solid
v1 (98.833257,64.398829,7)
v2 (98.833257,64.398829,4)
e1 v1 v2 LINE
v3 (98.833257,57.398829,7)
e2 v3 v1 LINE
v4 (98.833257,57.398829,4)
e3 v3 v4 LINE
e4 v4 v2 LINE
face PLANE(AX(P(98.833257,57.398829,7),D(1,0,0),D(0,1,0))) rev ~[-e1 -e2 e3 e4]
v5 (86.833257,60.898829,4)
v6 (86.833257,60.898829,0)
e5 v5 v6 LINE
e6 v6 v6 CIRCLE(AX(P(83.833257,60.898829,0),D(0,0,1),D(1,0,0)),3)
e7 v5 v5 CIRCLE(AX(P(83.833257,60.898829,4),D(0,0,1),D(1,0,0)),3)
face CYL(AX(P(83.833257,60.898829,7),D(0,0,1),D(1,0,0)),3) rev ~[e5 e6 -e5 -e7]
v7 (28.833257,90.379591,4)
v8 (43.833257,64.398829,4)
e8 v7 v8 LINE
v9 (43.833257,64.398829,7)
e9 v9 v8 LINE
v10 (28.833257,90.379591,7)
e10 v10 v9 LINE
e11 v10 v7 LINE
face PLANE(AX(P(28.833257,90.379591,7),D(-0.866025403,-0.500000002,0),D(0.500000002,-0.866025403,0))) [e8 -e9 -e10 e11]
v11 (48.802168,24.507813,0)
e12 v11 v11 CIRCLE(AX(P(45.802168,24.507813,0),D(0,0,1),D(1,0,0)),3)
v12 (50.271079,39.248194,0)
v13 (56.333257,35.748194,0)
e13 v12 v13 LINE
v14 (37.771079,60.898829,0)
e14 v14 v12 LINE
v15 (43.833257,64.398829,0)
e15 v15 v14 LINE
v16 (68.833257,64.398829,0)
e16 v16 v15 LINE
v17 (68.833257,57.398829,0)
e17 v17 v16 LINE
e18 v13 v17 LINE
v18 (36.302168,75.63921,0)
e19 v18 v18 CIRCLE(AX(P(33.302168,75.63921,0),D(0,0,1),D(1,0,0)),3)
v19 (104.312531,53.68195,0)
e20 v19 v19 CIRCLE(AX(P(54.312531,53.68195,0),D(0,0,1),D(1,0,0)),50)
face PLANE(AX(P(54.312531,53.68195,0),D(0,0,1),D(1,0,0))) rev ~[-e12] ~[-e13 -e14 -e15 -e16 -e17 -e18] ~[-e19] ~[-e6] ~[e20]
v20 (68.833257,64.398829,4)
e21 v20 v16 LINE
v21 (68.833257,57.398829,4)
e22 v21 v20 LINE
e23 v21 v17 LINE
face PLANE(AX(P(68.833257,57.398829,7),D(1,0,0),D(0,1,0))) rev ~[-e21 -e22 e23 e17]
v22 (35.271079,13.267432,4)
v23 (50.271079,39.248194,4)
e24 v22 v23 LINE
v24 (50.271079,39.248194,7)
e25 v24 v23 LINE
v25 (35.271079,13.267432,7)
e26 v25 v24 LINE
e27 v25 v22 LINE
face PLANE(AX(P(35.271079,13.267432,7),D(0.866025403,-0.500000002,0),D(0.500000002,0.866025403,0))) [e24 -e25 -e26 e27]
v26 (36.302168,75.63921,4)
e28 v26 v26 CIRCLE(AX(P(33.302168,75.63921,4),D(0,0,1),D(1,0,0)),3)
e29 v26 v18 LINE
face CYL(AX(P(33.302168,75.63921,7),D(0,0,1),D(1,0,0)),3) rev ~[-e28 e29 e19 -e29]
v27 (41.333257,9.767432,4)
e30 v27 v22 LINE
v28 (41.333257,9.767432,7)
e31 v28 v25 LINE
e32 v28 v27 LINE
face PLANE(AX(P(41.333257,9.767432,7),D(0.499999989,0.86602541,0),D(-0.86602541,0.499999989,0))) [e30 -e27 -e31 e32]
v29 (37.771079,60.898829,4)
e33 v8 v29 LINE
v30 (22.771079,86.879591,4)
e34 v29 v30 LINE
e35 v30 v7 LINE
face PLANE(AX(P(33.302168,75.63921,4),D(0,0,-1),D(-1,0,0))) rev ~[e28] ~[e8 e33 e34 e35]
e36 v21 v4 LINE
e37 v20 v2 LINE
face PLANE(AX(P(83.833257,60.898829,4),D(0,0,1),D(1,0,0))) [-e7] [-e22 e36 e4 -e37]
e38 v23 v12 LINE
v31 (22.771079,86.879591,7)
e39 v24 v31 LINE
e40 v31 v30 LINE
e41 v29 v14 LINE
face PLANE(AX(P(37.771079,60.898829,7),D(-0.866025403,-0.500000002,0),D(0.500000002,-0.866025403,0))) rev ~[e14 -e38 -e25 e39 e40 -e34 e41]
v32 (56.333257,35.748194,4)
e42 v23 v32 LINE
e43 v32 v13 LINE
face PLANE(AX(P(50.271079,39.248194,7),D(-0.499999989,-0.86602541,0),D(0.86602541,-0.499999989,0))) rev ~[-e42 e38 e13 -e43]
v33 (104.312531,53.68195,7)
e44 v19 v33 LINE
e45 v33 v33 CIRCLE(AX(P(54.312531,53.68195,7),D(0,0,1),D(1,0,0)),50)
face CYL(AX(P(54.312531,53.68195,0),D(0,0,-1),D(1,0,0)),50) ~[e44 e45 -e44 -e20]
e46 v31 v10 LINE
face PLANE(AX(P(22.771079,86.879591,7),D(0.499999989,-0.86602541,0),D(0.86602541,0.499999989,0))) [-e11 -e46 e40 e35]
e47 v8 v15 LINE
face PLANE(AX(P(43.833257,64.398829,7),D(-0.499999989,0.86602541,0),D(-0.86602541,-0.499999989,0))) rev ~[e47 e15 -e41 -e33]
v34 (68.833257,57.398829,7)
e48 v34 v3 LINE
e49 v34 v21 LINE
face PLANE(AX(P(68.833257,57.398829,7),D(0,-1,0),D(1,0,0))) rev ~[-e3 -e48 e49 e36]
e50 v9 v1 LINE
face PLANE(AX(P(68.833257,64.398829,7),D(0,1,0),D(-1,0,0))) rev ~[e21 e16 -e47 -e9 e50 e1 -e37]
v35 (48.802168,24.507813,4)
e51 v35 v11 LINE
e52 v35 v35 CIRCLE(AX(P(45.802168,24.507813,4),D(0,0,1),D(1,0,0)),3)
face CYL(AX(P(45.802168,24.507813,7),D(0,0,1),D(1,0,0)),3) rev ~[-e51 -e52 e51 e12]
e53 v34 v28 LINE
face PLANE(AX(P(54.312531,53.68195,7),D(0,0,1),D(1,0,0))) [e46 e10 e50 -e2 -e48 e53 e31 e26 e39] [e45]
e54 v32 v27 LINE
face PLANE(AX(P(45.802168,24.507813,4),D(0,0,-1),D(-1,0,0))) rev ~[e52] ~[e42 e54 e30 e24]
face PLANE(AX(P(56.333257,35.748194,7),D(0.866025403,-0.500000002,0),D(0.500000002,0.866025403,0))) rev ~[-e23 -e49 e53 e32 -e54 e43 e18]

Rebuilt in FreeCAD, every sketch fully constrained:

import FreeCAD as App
import Part
import Sketcher

V = App.Vector
Q = App.Units.Quantity


def add_polygon(sketch, points):
    """Adds a closed chain of lines whose ends are joined by coincident constraints."""
    first, n = sketch.GeometryCount, len(points)
    for a, b in zip(points, points[1:] + points[:1]):
        sketch.addGeometry(Part.LineSegment(App.Vector(*a, 0), App.Vector(*b, 0)), False)
    for i in range(n):
        sketch.addConstraint(Sketcher.Constraint("Coincident", first + i, 2, first + (i + 1) % n, 1))

doc = App.newDocument("Part")
body = doc.addObject("PartDesign::Body", "Body")

# Sketch on XY plane
sketch1 = body.newObject("Sketcher::SketchObject", "Sketch")
sketch1.AttachmentSupport = (doc.getObject("XY_Plane"), [""])
sketch1.MapMode = "FlatFace"
sketch1.addGeometry(Part.Circle(V(54.312531, 53.68195, 0), V(0, 0, 1), 50), False)
sketch1.addConstraint([
    Sketcher.Constraint("Diameter", 0, 100.0),
    Sketcher.Constraint("DistanceX", -1, 1, 0, 3, 54.312531),
    Sketcher.Constraint("DistanceY", -1, 1, 0, 3, 53.68195),
])
pad1 = body.newObject("PartDesign::Pad", "Pad")
pad1.Profile = sketch1
pad1.Length = 7

# Sketch on XY plane
sketch2 = body.newObject("Sketcher::SketchObject", "Sketch001")
sketch2.AttachmentSupport = (doc.getObject("XY_Plane"), [""])
sketch2.MapMode = "FlatFace"
sketch2.AttachmentOffset = App.Placement(V(0, 0, 7), App.Rotation())
add_polygon(sketch2, [(56.333257, 35.748194), (68.833257, 57.398829), (68.833257, 64.398829), (43.833257, 64.398829), (37.771079, 60.898829), (50.271079, 39.248194)])  # lines 0-5
sketch2.addConstraint([
    Sketcher.Constraint("Vertical", 1),
    Sketcher.Constraint("Horizontal", 2),
    Sketcher.Constraint("Perpendicular", 3, 4),
    Sketcher.Constraint("Perpendicular", 0, 5),
    Sketcher.Constraint("Equal", 0, 4),
    Sketcher.Constraint("Equal", 3, 5),
    Sketcher.Constraint("DistanceX", 2, 2, 2, 1, 25.0),
    Sketcher.Constraint("DistanceY", 1, 1, 1, 2, 7.0),
    Sketcher.Constraint("Angle", 0, Q("60 deg")),
    Sketcher.Constraint("Angle", 3, Q("-150.000001 deg")),
    Sketcher.Constraint("DistanceY", -1, 1, 0, 2, 57.398829),
    Sketcher.Constraint("DistanceX", -1, 1, 3, 2, 37.771079),
])
pocket1 = body.newObject("PartDesign::Pocket", "Pocket")
pocket1.Profile = sketch2
pocket1.Type = "ThroughAll"

# Sketch on XY plane
sketch3 = body.newObject("Sketcher::SketchObject", "Sketch002")
sketch3.AttachmentSupport = (doc.getObject("XY_Plane"), [""])
sketch3.MapMode = "FlatFace"
sketch3.AttachmentOffset = App.Placement(V(0, 0, 7), App.Rotation())
add_polygon(sketch3, [(68.833257, 64.398829), (68.833257, 57.398829), (98.833257, 57.398829), (98.833257, 64.398829)])  # lines 0-3
add_polygon(sketch3, [(41.333257, 9.767432), (56.333257, 35.748194), (50.271079, 39.248194), (35.271079, 13.267432)])  # lines 4-7
add_polygon(sketch3, [(22.771079, 86.879591), (37.771079, 60.898829), (43.833257, 64.398829), (28.833257, 90.379591)])  # lines 8-11
sketch3.addConstraint([
    Sketcher.Constraint("Vertical", 0),
    Sketcher.Constraint("Horizontal", 1),
    Sketcher.Constraint("Vertical", 2),
    Sketcher.Constraint("Horizontal", 3),
    Sketcher.Constraint("Perpendicular", 4, 5),
    Sketcher.Constraint("Perpendicular", 5, 6),
    Sketcher.Constraint("Perpendicular", 6, 7),
    Sketcher.Constraint("Perpendicular", 8, 9),
    Sketcher.Constraint("Perpendicular", 9, 10),
    Sketcher.Constraint("Perpendicular", 10, 11),
    Sketcher.Constraint("Horizontal", 3, 2, 9, 2),
    Sketcher.Constraint("Equal", 6, 8),
    Sketcher.Constraint("Equal", 7, 9),
    Sketcher.Constraint("DistanceX", 1, 1, 1, 2, 30.0),
    Sketcher.Constraint("DistanceY", 0, 2, 0, 1, 7.0),
    Sketcher.Constraint("Angle", 4, Q("60 deg")),
    Sketcher.Constraint("Angle", 8, Q("-60 deg")),
    Sketcher.Constraint("Distance", 4, 30.0),
    Sketcher.Constraint("Distance", 5, 7.0),
    Sketcher.Constraint("DistanceX", 9, 2, 3, 2, 25.0),
    Sketcher.Constraint("DistanceX", 4, 2, 0, 2, 12.5),
    Sketcher.Constraint("DistanceY", -1, 1, 0, 2, 57.398829),
    Sketcher.Constraint("DistanceX", -1, 1, 5, 2, 50.271079),
    Sketcher.Constraint("DistanceY", -1, 1, 4, 2, 35.748194),
])
pocket2 = body.newObject("PartDesign::Pocket", "Pocket001")
pocket2.Profile = sketch3
pocket2.Length = 3

# Sketch on XY plane
sketch4 = body.newObject("Sketcher::SketchObject", "Sketch003")
sketch4.AttachmentSupport = (doc.getObject("XY_Plane"), [""])
sketch4.MapMode = "FlatFace"
sketch4.AttachmentOffset = App.Placement(V(0, 0, 7), App.Rotation())
sketch4.addGeometry([
    Part.Circle(V(45.802168, 24.507813, 0), V(0, 0, 1), 3),
    Part.Circle(V(33.302168, 75.63921, 0), V(0, 0, 1), 3),
    Part.Circle(V(83.833257, 60.898829, 0), V(0, 0, 1), 3),
], False)
sketch4.addConstraint([
    Sketcher.Constraint("Equal", 0, 1),
    Sketcher.Constraint("Equal", 1, 2),
    Sketcher.Constraint("Diameter", 0, 6.0),
    Sketcher.Constraint("DistanceX", 1, 3, 0, 3, 12.5),
    Sketcher.Constraint("DistanceX", -1, 1, 0, 3, 45.802168),
    Sketcher.Constraint("DistanceY", -1, 1, 1, 3, 75.63921),
    Sketcher.Constraint("DistanceY", -1, 1, 2, 3, 60.898829),
    Sketcher.Constraint("DistanceX", 0, 3, 2, 3, 38.031089),
    Sketcher.Constraint("DistanceY", -1, 1, 0, 3, 24.507813),
])
pocket3 = body.newObject("PartDesign::Pocket", "Pocket002")
pocket3.Profile = sketch4
pocket3.Length = 15

doc.recompute()
